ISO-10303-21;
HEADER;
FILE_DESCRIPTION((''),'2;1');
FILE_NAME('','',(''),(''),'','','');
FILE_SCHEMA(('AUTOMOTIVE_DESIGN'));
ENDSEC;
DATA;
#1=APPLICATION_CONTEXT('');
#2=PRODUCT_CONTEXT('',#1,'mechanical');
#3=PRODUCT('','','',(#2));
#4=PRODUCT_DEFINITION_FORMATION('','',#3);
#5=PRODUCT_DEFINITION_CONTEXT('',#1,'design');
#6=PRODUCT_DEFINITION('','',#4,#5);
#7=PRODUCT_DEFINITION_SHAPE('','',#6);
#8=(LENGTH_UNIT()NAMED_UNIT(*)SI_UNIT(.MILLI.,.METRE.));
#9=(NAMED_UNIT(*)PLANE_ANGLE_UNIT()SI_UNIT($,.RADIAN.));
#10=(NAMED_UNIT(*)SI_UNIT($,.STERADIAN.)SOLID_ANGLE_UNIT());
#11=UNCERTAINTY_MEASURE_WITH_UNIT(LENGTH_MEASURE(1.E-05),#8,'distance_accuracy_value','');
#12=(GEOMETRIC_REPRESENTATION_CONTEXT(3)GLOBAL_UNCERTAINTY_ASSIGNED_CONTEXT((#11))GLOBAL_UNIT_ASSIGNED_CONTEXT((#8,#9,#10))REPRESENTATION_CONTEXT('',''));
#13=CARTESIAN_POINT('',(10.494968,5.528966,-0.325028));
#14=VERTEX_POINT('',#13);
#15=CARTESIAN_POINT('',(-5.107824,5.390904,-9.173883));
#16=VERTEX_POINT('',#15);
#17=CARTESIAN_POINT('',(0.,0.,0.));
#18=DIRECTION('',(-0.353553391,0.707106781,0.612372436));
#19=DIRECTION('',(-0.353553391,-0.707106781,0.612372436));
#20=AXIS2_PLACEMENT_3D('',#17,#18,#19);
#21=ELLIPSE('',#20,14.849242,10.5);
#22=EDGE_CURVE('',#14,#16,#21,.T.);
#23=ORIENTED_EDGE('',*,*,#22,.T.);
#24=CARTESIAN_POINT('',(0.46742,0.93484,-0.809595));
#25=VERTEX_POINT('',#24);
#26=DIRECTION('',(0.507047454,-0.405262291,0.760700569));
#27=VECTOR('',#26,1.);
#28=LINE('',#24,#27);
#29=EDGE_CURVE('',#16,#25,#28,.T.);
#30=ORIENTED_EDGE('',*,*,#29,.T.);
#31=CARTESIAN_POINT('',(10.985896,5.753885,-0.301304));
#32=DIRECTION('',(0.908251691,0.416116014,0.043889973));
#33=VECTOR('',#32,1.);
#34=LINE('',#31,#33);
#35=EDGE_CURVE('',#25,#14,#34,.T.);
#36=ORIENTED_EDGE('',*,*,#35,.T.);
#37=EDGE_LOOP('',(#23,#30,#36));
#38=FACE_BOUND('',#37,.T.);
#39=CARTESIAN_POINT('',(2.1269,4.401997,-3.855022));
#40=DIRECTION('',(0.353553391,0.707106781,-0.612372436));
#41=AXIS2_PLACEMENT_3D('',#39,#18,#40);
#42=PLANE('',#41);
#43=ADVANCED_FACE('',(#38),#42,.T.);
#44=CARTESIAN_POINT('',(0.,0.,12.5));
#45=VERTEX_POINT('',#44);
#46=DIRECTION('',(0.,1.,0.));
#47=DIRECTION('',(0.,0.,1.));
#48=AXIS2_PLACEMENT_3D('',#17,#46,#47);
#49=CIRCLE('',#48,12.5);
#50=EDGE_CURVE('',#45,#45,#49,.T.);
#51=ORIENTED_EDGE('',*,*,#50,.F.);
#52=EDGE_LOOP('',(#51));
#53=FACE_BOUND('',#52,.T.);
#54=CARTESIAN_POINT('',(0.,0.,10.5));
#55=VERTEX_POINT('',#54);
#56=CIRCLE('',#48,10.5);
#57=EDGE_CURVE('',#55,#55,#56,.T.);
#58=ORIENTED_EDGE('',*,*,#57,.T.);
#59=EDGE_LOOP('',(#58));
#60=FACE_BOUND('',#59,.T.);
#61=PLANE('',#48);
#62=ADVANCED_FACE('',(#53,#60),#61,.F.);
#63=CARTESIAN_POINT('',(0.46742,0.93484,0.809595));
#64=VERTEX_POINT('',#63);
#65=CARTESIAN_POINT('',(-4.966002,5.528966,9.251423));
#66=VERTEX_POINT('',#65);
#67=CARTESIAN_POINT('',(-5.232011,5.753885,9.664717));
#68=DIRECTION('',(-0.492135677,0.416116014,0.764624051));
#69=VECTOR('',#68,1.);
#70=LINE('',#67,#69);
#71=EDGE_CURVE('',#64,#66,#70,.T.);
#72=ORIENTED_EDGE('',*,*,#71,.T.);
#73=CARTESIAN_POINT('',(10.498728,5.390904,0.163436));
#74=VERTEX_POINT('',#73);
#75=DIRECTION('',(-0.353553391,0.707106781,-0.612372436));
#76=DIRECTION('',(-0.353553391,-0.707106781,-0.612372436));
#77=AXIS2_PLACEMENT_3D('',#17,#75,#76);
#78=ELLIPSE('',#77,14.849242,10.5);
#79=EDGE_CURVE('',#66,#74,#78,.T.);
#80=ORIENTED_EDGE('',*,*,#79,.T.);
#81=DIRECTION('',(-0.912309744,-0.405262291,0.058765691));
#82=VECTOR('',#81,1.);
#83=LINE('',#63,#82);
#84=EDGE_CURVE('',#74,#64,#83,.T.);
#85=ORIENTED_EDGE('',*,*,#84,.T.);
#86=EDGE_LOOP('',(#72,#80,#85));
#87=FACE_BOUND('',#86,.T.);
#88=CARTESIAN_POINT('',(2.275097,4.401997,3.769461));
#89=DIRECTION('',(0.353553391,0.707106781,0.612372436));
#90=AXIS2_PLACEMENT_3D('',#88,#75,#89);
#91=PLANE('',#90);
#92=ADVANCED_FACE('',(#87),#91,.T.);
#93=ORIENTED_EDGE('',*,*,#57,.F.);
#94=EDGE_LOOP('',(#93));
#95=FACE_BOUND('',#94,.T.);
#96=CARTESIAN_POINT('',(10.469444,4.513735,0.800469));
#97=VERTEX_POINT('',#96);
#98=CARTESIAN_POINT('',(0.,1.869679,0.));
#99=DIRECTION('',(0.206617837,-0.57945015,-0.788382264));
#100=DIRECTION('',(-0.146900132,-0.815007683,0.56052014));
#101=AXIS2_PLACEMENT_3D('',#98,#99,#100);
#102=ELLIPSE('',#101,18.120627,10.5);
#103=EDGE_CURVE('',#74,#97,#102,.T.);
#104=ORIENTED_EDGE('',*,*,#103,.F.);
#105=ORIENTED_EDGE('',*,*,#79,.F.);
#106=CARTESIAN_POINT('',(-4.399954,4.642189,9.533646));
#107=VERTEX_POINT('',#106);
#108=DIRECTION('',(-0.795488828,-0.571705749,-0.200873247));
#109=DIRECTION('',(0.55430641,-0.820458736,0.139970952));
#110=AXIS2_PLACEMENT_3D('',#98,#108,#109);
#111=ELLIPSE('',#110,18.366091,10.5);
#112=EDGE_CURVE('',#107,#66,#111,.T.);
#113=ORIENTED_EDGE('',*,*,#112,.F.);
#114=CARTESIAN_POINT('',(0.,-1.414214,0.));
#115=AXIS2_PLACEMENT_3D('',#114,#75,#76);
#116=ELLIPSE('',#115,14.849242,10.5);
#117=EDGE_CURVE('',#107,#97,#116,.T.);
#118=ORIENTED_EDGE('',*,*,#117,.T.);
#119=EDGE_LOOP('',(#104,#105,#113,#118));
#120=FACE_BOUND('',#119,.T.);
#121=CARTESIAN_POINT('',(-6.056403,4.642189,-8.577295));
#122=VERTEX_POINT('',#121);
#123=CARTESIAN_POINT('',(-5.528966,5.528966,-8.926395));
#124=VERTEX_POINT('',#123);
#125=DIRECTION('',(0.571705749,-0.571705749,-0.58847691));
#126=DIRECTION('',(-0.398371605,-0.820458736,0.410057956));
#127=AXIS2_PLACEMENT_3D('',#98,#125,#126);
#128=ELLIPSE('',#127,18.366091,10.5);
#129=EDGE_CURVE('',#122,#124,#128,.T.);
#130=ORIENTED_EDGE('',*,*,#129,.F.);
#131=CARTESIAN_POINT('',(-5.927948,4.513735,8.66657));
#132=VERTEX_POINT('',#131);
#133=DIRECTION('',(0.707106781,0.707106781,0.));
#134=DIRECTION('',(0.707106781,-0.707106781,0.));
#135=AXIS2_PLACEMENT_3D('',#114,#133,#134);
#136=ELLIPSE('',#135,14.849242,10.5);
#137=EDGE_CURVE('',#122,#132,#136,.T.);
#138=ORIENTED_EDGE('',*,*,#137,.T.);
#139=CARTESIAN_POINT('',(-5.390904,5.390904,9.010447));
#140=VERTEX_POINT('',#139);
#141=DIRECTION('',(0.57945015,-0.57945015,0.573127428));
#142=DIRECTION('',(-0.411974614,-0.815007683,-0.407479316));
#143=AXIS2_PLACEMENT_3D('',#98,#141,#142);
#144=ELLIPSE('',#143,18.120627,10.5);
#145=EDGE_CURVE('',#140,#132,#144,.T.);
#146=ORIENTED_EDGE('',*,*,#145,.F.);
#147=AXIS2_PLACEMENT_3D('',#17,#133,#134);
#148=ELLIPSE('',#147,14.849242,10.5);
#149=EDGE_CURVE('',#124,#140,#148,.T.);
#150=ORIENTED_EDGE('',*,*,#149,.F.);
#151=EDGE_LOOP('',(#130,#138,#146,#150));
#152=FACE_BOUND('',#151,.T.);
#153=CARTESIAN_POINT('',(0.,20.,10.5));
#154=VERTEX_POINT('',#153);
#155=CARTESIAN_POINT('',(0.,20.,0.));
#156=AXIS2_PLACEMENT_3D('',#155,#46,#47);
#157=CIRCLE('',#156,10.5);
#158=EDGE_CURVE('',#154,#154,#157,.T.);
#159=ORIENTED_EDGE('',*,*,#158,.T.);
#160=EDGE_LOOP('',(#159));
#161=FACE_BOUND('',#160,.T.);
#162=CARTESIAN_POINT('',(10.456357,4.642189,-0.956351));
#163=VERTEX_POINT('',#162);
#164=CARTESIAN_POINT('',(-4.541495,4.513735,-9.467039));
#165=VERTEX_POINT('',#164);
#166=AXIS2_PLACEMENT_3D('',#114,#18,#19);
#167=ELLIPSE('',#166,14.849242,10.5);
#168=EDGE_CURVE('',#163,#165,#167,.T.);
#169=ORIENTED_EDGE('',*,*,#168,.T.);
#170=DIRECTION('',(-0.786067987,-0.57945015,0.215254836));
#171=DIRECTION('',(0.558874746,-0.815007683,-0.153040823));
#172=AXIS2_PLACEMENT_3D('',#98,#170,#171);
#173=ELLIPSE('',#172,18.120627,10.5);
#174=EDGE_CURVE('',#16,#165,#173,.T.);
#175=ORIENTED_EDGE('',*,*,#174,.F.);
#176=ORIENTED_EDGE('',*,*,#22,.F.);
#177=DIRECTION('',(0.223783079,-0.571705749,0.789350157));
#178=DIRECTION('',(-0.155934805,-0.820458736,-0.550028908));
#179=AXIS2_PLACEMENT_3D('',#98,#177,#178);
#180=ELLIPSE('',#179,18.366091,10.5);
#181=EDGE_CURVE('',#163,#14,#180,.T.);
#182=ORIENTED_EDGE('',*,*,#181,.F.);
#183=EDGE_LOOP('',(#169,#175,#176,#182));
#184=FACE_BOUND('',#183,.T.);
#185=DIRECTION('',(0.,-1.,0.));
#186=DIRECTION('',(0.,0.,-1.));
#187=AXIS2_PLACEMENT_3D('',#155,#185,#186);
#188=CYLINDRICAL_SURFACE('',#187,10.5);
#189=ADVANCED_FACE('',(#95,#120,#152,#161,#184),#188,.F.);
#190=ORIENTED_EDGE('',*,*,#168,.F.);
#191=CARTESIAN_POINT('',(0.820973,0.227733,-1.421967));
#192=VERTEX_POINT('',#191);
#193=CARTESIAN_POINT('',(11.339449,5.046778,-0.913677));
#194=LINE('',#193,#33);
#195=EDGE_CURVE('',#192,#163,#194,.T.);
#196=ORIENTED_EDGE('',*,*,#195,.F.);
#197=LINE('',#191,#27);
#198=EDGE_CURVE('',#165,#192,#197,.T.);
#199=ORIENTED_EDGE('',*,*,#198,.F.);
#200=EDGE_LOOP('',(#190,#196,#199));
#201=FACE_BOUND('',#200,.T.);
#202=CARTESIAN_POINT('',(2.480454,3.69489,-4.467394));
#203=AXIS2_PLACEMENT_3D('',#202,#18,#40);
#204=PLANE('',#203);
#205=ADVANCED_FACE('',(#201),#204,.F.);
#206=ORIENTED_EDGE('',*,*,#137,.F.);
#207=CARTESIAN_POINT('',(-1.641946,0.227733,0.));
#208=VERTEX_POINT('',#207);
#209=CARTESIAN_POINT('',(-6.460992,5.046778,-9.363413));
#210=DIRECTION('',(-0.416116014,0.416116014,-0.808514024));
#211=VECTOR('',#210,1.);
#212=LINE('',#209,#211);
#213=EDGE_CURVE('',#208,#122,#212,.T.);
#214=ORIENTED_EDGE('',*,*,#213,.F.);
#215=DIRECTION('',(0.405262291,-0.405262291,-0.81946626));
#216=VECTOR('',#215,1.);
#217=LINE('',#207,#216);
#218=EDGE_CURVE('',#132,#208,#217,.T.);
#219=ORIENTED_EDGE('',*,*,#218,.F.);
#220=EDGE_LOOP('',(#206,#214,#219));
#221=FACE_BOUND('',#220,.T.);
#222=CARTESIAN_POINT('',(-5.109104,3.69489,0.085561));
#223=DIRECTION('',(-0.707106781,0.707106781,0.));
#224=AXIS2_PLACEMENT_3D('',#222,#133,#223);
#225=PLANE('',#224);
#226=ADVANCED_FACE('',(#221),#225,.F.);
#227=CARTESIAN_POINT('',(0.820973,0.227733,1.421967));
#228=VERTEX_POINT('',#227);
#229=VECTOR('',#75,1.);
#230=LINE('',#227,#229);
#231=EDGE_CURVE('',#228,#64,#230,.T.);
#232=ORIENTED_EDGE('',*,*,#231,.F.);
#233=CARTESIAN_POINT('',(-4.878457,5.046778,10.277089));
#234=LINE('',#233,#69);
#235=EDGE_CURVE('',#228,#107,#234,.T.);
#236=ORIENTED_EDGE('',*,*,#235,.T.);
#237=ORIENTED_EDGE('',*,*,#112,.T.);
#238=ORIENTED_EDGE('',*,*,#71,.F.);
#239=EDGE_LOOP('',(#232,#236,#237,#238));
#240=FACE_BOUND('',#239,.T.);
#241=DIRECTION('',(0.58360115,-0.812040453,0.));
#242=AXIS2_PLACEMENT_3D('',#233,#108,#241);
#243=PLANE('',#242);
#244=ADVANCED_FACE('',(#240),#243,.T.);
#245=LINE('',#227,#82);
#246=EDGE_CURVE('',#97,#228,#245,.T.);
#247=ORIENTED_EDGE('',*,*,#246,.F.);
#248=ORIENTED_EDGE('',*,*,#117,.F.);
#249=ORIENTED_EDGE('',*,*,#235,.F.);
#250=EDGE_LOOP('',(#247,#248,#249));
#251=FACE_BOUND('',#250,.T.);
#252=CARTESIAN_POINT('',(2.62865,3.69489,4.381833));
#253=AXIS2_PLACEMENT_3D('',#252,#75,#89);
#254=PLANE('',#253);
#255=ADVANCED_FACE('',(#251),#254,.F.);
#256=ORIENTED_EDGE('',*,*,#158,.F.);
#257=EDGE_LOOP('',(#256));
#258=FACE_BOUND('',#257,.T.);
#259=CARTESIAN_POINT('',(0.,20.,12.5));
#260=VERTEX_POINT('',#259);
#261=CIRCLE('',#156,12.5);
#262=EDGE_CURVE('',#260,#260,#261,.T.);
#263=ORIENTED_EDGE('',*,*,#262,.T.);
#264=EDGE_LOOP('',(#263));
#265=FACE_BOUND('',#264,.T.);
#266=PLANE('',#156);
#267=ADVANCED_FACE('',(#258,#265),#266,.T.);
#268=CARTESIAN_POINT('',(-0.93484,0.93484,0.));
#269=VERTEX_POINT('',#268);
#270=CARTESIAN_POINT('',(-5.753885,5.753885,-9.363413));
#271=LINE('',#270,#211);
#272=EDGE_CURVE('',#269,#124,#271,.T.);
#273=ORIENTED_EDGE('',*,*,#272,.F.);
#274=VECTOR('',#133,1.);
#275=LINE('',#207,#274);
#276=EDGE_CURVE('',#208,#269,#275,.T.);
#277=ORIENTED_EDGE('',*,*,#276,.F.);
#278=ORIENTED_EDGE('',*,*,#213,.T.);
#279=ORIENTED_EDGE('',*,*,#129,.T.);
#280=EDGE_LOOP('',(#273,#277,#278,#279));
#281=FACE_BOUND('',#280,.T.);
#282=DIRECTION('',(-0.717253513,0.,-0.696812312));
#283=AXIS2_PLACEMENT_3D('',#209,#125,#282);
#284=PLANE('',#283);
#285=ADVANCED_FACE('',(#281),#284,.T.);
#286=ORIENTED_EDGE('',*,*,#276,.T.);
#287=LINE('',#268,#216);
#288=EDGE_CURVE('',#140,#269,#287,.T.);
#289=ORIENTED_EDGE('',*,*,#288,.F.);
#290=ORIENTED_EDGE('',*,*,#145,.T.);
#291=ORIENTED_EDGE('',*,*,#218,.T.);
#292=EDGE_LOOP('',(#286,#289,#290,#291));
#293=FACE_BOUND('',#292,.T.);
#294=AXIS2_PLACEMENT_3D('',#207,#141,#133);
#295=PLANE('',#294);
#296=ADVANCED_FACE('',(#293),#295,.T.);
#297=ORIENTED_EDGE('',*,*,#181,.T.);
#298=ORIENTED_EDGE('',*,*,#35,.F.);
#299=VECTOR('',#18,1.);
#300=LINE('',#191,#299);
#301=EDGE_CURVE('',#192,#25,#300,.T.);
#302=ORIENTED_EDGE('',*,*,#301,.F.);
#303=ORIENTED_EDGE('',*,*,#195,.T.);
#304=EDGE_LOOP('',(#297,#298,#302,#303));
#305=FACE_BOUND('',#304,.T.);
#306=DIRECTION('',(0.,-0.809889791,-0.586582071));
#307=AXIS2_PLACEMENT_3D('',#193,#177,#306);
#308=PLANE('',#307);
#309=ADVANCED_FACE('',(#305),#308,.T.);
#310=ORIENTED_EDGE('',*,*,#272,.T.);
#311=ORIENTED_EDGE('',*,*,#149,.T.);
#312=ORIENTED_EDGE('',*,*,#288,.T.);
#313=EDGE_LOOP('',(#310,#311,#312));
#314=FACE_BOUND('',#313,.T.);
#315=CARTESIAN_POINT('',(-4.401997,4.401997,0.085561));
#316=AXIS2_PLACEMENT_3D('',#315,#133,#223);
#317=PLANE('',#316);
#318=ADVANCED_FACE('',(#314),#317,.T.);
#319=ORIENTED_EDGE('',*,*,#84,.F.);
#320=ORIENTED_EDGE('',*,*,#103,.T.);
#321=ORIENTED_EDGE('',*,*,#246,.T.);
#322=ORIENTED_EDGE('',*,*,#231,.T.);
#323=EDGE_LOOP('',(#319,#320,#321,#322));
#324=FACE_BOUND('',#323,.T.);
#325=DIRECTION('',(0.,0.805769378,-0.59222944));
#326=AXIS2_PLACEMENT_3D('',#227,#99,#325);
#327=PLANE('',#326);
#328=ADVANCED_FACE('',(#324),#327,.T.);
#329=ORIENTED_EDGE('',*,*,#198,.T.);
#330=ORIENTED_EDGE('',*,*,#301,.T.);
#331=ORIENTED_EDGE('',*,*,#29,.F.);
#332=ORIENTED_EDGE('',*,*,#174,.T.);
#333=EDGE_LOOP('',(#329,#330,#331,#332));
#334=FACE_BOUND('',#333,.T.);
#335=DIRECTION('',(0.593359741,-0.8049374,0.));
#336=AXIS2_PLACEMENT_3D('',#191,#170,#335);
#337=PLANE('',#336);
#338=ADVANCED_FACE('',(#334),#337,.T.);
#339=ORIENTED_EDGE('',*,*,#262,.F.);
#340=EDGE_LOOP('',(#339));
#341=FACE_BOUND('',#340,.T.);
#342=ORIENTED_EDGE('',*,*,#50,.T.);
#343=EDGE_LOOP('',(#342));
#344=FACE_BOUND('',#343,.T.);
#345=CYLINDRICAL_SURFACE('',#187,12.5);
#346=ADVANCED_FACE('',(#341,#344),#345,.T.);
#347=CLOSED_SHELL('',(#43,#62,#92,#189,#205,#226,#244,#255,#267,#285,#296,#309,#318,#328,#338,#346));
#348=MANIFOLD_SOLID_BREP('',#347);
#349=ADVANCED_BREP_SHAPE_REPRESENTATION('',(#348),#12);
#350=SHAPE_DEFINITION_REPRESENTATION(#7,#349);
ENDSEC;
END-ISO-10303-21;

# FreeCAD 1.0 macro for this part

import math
import FreeCAD as App
import Part
import Sketcher
from FreeCAD import Vector

doc = App.newDocument("Part")
body = doc.addObject("PartDesign::Body", "Body")

# Sketch on XZ plane
sketch1 = body.newObject("Sketcher::SketchObject", "Sketch")
sketch1.AttachmentSupport = (doc.getObject("XZ_Plane"), [""])
sketch1.MapMode = "FlatFace"
sketch1.addGeometry([
    Part.Circle(Vector(0, 0, 0), Vector(0, 0, 1), 12),
    Part.Circle(Vector(0, 0, 0), Vector(0, 0, 1), 10),
], False)
sketch1.addConstraint([
    Sketcher.Constraint("Coincident", 0, 3, -1, 1),
    Sketcher.Constraint("Coincident", 1, 3, -1, 1),
    Sketcher.Constraint("Diameter", 0, 25.0),
    Sketcher.Constraint("Diameter", 1, 21.0),
])
pad1 = body.newObject("PartDesign::Pad", "Pad")
pad1.Profile = sketch1
pad1.Length = 20
pad1.Reversed = True

# Sketch on an angled plane
sketch2 = body.newObject("Sketcher::SketchObject", "Sketch001")
sketch2.Placement = App.Placement(Vector(0, 0, 0), App.Rotation(Vector(0, 0, 1), Vector(0.707106781, -0.707106781, 0), Vector(0.707106781, 0.707106781, 0), "ZXY"))
sketch2.addGeometry([
    Part.LineSegment(Vector(0, -1, 0), Vector(-9, -8, 0)),
    Part.ArcOfCircle(Part.Circle(Vector(0, -6, 0), Vector(0, 0, 1), 10), math.radians(-169), math.radians(-11)),
    Part.LineSegment(Vector(10, -8, 0), Vector(0, -1, 0)),
], False)
sketch2.addConstraint([
    Sketcher.Constraint("Coincident", 0, 2, 1, 1),
    Sketcher.Constraint("Coincident", 1, 2, 2, 1),
    Sketcher.Constraint("Coincident", 2, 2, 0, 1),
    Sketcher.Constraint("PointOnObject", 2, 2, -2),
    Sketcher.Constraint("Radius", 1, 9.640452),
    Sketcher.Constraint("DistanceY", 1, 3, 2, 2, 4.903301),
    Sketcher.Constraint("DistanceX", -1, 1, 1, 3, 0.085561),
    Sketcher.Constraint("DistanceX", -1, 1, 1, 2, 9.559751),
    Sketcher.Constraint("DistanceY", 0, 2, 1, 3, 1.911859),
    Sketcher.Constraint("DistanceY", 1, 3, -1, 1, 6.225364),
])
pad2 = body.newObject("PartDesign::Pad", "Pad001")
pad2.Profile = sketch2
pad2.Length = 1
pad2.Reversed = True
doc.recompute()

polarpattern = body.newObject("PartDesign::PolarPattern", "PolarPattern")
polarpattern.Originals = [pad2]
polarpattern.Axis = (doc.getObject("Y_Axis"), [""])
polarpattern.Angle = 360
polarpattern.Occurrences = 3
body.Tip = polarpattern

doc.recompute()
